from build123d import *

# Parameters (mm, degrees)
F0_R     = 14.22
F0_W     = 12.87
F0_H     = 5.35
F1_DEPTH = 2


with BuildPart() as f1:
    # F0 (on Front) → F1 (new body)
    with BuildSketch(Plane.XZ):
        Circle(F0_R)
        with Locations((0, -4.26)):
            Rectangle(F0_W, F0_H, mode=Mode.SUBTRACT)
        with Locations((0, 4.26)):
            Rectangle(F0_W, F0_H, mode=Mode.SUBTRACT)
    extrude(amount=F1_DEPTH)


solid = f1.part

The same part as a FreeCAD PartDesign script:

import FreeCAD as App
import Part
import Sketcher
Q = App.Units.Quantity

doc = App.newDocument("Part")
body = doc.addObject("PartDesign::Body", "Body")

# Sketch on XZ plane
sketch1 = body.newObject("Sketcher::SketchObject", "Sketch")
sketch1.AttachmentSupport = (doc.getObject("XZ_Plane"), [""])
sketch1.MapMode = "FlatFace"
sketch1.addGeometry([
    Part.Circle(App.Vector(0, 0, 0), App.Vector(0, 0, 1), 14),  # 0
    Part.LineSegment(App.Vector(6, -7, 0), App.Vector(-6, -7, 0)),  # 1
    Part.LineSegment(App.Vector(-6, -7, 0), App.Vector(-6, -2, 0)),  # 2
    Part.LineSegment(App.Vector(-6, -2, 0), App.Vector(6, -2, 0)),  # 3
    Part.LineSegment(App.Vector(6, -2, 0), App.Vector(6, -7, 0)),  # 4
    Part.LineSegment(App.Vector(6, 2, 0), App.Vector(-6, 2, 0)),  # 5
    Part.LineSegment(App.Vector(-6, 2, 0), App.Vector(-6, 7, 0)),  # 6
    Part.LineSegment(App.Vector(-6, 7, 0), App.Vector(6, 7, 0)),  # 7
    Part.LineSegment(App.Vector(6, 7, 0), App.Vector(6, 2, 0)),  # 8
], False)
sketch1.addConstraint([
    Sketcher.Constraint("Coincident", 1, 2, 2, 1),
    Sketcher.Constraint("Coincident", 2, 2, 3, 1),
    Sketcher.Constraint("Coincident", 3, 2, 4, 1),
    Sketcher.Constraint("Coincident", 4, 2, 1, 1),
    Sketcher.Constraint("Coincident", 5, 2, 6, 1),
    Sketcher.Constraint("Coincident", 6, 2, 7, 1),
    Sketcher.Constraint("Coincident", 7, 2, 8, 1),
    Sketcher.Constraint("Coincident", 8, 2, 5, 1),
    Sketcher.Constraint("Horizontal", 1),
    Sketcher.Constraint("Vertical", 2),
    Sketcher.Constraint("Horizontal", 3),
    Sketcher.Constraint("Vertical", 4),
    Sketcher.Constraint("Horizontal", 5),
    Sketcher.Constraint("Vertical", 6),
    Sketcher.Constraint("Horizontal", 7),
    Sketcher.Constraint("Vertical", 8),
    Sketcher.Constraint("Coincident", 0, 3, -1, 1),
    Sketcher.Constraint("Symmetric", 3, 2, 5, 2, -1, 1),
    Sketcher.Constraint("Symmetric", 1, 2, 7, 2, -1, 1),
    Sketcher.Constraint("Vertical", 2, 2, 5, 2),
    Sketcher.Constraint("Diameter", 0, Q("28.44 mm")),
    Sketcher.Constraint("DistanceX", 1, 2, 1, 1, Q("12.87 mm")),
    Sketcher.Constraint("DistanceY", 2, 1, 2, 2, Q("5.35 mm")),
    Sketcher.Constraint("DistanceY", 2, 2, 5, 2, Q("3.17 mm")),
])
pad1 = body.newObject("PartDesign::Pad", "Pad")
pad1.Profile = sketch1
pad1.Length = 2

doc.recompute()
